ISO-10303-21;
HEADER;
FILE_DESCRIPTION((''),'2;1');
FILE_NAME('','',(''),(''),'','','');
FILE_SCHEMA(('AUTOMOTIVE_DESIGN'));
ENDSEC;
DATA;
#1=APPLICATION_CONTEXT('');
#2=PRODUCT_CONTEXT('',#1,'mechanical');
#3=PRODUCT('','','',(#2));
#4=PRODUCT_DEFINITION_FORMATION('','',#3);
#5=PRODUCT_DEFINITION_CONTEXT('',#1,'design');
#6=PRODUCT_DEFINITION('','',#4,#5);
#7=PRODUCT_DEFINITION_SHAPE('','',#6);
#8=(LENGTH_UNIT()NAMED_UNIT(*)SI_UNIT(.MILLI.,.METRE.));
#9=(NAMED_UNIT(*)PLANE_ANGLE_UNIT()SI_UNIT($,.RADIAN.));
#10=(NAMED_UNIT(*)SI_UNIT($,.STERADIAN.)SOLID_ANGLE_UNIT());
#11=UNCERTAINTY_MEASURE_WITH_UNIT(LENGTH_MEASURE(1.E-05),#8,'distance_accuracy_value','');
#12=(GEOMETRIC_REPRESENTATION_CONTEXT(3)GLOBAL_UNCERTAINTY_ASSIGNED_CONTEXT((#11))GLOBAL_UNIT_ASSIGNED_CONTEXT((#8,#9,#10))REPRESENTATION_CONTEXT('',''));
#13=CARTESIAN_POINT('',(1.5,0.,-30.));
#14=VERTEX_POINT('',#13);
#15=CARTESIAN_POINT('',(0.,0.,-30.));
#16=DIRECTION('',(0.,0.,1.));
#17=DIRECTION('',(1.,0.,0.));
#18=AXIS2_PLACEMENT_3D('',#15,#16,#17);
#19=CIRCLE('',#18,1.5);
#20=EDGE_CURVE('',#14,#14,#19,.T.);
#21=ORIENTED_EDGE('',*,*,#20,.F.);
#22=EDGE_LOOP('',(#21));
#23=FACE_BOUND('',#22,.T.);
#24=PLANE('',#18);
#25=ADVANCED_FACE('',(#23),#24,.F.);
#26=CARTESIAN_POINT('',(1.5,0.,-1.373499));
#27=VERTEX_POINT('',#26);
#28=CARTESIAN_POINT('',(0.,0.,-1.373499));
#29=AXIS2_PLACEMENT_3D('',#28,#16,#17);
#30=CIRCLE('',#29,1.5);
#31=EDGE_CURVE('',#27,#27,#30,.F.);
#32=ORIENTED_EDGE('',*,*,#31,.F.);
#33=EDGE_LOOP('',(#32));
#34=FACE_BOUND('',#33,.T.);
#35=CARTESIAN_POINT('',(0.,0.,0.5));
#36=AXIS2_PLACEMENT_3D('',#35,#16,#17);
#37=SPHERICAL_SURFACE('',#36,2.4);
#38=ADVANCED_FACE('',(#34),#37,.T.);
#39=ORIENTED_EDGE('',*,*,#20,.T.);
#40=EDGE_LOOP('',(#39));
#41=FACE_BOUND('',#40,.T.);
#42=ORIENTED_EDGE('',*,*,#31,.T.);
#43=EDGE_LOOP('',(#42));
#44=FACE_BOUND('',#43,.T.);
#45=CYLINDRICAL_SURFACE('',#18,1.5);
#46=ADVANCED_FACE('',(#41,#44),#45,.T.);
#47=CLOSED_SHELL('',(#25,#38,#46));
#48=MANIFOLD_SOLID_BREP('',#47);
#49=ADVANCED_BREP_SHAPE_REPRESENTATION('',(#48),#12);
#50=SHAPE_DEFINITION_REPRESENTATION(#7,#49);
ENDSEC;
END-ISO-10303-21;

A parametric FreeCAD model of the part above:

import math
import FreeCAD as App
import Part
import Sketcher

V = App.Vector

doc = App.newDocument("Part")
body = doc.addObject("PartDesign::Body", "Body")

# Sketch on XY plane
sketch1 = body.newObject("Sketcher::SketchObject", "Sketch")
sketch1.AttachmentSupport = (doc.getObject("XY_Plane"), [""])
sketch1.MapMode = "FlatFace"
sketch1.addGeometry(Part.Circle(V(0, 0, 0), V(0, 0, 1), 1.5), False)
sketch1.addConstraint(Sketcher.Constraint("Coincident", 0, 3, -1, 1))
sketch1.addConstraint(Sketcher.Constraint("Diameter", 0, 3.0))
pad1 = body.newObject("PartDesign::Pad", "Pad")
pad1.Profile = sketch1
pad1.Length = 30
pad1.Reversed = True

# Sketch on XY plane
sketch2 = body.newObject("Sketcher::SketchObject", "Sketch001")
sketch2.AttachmentSupport = (doc.getObject("XY_Plane"), [""])
sketch2.MapMode = "FlatFace"
sketch2.AttachmentOffset = App.Placement(V(0, 0, 0.5), App.Rotation())
sketch2.addGeometry(Part.LineSegment(V(0, 2.4, 0), V(0, -2.4, 0)), False)
sketch2.addGeometry(Part.ArcOfCircle(Part.Circle(V(0, 0, 0), V(0, 0, 1), 2.4), math.radians(-90), math.radians(90)), False)
sketch2.addConstraint(Sketcher.Constraint("Coincident", 0, 1, 1, 2))
sketch2.addConstraint(Sketcher.Constraint("Coincident", 1, 1, 0, 2))
sketch2.addConstraint(Sketcher.Constraint("Vertical", 0))
sketch2.addConstraint(Sketcher.Constraint("Coincident", 1, 3, -1, 1))
sketch2.addConstraint(Sketcher.Constraint("PointOnObject", 0, 1, -2))
sketch2.addConstraint(Sketcher.Constraint("Radius", 1, 2.4))
revolution = body.newObject("PartDesign::Revolution", "Revolution")
revolution.Profile = sketch2
revolution.ReferenceAxis = (sketch2, ["V_Axis"])
revolution.Angle = 360

doc.recompute()
